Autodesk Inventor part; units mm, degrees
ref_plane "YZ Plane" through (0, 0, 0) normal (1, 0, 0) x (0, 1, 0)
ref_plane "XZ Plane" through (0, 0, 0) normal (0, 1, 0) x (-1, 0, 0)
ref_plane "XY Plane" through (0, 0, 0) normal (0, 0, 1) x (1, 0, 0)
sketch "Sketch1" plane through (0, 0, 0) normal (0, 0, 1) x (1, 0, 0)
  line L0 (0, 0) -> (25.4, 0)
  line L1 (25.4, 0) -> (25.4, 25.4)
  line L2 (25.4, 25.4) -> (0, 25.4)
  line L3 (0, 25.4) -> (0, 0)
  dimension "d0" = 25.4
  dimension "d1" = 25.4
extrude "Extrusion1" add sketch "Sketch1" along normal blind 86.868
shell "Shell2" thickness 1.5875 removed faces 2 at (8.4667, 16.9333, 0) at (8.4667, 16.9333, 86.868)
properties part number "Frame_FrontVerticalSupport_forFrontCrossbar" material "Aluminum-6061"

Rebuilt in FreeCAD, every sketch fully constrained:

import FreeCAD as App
import Part
import Sketcher
Q = App.Units.Quantity


def faces_at(feature, points):
    """Names of the faces that lie closest to the given points."""
    faces = feature.Shape.Faces
    near = lambda p: min(range(len(faces)), key=lambda i: faces[i].distToShape(Part.Vertex(*p))[0])
    return sorted({f"Face{near(p) + 1}" for p in points})

doc = App.newDocument("Part")
body = doc.addObject("PartDesign::Body", "Body")

sketch1 = doc.addObject("Sketcher::SketchObject", "Sketch")
body.addObject(sketch1)
sketch1.AttachmentSupport = (doc.XY_Plane, [""])
sketch1.MapMode = "FlatFace"
sketch1.addGeometry([
    Part.LineSegment(App.Vector(0, 25, 0), App.Vector(0, 0, 0)),
    Part.LineSegment(App.Vector(0, 0, 0), App.Vector(25, 0, 0)),
    Part.LineSegment(App.Vector(25, 0, 0), App.Vector(25, 25, 0)),
    Part.LineSegment(App.Vector(25, 25, 0), App.Vector(0, 25, 0)),
], False)
sketch1.addConstraint([
    Sketcher.Constraint("Coincident", 0, 2, 1, 1),
    Sketcher.Constraint("Coincident", 1, 2, 2, 1),
    Sketcher.Constraint("Coincident", 2, 2, 3, 1),
    Sketcher.Constraint("Coincident", 3, 2, 0, 1),
    Sketcher.Constraint("Vertical", 0),
    Sketcher.Constraint("Horizontal", 1),
    Sketcher.Constraint("Vertical", 2),
    Sketcher.Constraint("Horizontal", 3),
    Sketcher.Constraint("Coincident", 0, 2, -1, 1),
    Sketcher.Constraint("Equal", 3, 0),
    Sketcher.Constraint("DistanceX", 1, 1, 1, 2, Q("1 in")),
])
pad1 = doc.addObject("PartDesign::Pad", "Pad")
body.addObject(pad1)
pad1.Profile = sketch1
pad1.Length = Q("3.42 in")
doc.recompute()

thickness = doc.addObject("PartDesign::Thickness", "Thickness")
body.addObject(thickness)
thickness.Base = (pad1, faces_at(pad1, [(8.467, 16.933, 0), (8.467, 16.933, 86.868)]))
thickness.Value = Q("0.0625 in")
thickness.Reversed = True
thickness.Join = "Intersection"

doc.recompute()
